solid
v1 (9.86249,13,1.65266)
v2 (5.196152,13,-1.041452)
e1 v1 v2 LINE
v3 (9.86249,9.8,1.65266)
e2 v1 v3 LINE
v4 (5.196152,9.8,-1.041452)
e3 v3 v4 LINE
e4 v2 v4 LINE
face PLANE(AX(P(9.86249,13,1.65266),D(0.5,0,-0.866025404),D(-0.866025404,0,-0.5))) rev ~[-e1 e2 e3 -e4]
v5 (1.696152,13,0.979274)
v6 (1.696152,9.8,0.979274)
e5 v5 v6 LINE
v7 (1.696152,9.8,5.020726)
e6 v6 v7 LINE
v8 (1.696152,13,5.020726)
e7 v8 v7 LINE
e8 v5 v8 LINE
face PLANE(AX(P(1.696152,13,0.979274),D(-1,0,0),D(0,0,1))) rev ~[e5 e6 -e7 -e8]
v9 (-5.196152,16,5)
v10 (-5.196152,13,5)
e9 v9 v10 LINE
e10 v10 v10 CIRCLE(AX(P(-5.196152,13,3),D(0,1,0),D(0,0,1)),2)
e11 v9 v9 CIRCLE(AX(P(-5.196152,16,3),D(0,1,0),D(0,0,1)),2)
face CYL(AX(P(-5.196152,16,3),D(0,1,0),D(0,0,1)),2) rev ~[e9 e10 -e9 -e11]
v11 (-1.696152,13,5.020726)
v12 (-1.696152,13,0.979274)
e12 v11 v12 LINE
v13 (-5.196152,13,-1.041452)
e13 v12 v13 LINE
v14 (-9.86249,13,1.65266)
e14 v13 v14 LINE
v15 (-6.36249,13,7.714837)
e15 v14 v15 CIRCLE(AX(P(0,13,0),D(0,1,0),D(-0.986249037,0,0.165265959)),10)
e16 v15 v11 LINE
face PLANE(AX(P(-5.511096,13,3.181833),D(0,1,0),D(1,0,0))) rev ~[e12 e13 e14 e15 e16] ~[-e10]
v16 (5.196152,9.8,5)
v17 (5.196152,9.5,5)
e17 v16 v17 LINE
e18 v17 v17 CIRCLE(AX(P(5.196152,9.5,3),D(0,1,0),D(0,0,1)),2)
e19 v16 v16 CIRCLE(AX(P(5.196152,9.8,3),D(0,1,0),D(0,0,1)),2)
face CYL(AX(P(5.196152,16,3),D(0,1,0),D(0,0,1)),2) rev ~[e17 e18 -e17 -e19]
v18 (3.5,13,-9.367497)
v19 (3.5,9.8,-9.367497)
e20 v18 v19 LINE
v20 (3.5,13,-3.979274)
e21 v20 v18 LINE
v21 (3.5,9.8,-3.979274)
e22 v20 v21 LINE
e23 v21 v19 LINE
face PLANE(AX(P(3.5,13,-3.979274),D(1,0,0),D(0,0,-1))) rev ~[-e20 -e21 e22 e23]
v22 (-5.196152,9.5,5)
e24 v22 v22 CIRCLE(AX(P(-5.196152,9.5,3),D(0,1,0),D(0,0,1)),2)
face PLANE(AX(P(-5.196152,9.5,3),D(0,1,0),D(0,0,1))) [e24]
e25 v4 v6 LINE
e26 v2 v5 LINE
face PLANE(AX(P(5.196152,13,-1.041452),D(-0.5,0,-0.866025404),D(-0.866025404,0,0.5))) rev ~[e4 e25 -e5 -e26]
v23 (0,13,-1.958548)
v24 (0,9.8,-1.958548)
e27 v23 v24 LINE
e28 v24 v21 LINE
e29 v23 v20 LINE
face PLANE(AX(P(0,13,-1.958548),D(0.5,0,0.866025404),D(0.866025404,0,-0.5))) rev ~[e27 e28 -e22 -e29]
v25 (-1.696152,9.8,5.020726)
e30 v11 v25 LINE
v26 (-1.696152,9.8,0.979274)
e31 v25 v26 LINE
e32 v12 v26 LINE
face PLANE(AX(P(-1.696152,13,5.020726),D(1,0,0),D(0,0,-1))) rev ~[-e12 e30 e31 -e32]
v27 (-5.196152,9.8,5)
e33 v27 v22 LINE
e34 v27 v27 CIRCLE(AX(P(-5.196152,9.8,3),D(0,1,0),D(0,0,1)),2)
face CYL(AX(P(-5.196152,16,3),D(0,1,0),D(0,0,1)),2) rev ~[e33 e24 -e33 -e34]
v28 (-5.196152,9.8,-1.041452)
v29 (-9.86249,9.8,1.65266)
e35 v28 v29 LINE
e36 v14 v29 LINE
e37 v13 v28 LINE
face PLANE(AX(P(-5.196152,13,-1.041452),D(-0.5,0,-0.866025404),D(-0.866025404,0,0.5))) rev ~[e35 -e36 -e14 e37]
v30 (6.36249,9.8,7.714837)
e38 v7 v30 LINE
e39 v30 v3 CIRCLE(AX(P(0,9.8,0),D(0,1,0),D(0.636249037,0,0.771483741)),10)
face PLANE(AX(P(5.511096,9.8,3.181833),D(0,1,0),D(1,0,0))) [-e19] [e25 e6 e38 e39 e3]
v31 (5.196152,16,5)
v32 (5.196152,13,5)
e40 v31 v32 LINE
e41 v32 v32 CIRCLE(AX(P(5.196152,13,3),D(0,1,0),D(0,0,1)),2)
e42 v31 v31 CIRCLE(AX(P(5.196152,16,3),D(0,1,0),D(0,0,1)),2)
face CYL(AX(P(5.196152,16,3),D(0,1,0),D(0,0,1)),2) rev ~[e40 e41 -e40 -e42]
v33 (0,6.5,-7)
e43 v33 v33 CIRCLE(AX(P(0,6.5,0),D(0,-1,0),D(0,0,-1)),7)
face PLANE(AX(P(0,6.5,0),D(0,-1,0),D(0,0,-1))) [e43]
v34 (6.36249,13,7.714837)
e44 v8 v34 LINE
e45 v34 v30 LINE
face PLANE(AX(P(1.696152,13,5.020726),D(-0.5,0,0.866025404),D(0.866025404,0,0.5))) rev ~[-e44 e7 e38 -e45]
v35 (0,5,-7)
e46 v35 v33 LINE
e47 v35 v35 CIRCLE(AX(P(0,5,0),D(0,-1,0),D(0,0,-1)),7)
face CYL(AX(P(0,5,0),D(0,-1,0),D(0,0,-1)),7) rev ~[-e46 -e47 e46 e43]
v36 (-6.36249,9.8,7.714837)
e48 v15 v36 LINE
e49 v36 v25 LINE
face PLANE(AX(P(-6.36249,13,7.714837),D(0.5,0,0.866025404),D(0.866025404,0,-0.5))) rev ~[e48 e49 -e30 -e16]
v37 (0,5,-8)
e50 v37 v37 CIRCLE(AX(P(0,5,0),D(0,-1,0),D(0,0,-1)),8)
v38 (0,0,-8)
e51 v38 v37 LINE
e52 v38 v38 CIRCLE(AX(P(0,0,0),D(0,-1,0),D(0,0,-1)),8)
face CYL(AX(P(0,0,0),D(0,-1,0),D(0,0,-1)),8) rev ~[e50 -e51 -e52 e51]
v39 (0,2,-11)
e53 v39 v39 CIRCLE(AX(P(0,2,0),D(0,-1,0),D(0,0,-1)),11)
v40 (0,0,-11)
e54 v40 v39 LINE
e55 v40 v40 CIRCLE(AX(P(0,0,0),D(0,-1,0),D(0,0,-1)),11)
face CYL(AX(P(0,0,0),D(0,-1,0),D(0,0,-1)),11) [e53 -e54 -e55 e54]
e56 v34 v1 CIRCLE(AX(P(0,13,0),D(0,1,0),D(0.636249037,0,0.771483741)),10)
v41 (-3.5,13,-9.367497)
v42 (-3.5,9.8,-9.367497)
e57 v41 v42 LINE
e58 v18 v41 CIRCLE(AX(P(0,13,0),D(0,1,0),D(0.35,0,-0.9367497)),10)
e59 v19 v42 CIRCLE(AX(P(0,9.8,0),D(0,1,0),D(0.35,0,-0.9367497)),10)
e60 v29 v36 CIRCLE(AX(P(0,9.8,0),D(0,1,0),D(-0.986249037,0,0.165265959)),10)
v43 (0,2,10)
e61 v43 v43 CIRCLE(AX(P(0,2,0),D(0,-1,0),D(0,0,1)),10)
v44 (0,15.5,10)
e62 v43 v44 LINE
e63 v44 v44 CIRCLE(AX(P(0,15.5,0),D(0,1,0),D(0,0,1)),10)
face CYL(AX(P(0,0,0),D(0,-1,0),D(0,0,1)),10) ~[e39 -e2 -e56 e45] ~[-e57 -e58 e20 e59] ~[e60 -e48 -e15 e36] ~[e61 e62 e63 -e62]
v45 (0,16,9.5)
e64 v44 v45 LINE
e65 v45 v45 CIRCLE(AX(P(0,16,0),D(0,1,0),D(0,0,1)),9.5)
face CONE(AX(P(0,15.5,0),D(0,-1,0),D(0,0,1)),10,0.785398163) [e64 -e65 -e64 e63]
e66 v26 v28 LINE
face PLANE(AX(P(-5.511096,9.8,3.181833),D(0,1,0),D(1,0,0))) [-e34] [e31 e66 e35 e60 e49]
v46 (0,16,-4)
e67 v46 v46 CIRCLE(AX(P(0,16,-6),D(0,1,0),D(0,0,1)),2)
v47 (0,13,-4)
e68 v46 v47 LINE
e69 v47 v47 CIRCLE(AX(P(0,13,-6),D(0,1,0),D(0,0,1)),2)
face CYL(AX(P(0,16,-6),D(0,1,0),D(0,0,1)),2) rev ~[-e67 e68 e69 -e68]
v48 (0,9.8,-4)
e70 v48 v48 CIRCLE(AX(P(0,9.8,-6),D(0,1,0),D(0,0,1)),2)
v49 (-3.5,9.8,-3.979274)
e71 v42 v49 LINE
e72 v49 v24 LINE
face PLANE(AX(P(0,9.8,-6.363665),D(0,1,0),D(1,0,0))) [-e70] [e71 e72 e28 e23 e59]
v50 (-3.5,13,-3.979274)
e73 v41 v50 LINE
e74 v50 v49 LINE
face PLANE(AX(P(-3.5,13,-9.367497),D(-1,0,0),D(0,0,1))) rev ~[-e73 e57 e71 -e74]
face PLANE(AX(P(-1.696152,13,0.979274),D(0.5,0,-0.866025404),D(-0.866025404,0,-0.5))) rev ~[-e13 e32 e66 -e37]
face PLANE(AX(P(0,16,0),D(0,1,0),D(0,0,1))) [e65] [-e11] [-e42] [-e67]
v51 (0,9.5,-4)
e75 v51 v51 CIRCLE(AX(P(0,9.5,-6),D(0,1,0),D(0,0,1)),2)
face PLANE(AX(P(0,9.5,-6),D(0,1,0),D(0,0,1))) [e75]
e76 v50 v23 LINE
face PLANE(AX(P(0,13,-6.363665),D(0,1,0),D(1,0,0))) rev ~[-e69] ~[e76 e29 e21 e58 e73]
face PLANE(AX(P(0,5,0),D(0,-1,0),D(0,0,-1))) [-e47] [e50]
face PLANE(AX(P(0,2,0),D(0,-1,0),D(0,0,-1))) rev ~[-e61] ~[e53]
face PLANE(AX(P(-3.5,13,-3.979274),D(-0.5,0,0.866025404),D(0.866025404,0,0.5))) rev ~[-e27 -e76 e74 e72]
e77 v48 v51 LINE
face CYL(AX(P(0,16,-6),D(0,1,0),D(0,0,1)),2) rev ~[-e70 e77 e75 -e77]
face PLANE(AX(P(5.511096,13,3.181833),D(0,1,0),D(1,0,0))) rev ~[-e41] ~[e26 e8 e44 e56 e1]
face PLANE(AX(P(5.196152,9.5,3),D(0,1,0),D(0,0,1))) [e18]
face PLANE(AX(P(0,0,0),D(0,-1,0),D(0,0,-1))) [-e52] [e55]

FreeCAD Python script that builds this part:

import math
import FreeCAD as App
import Part
import Sketcher
from FreeCAD import Vector
Q = App.Units.Quantity


def edges_at(feature, points):
    """Names of the edges that pass closest to the given points."""
    edges = feature.Shape.Edges
    near = lambda p: min(range(len(edges)), key=lambda i: edges[i].distToShape(Part.Vertex(*p))[0])
    return sorted({f"Edge{near(p) + 1}" for p in points})

doc = App.newDocument("Part")
body = doc.addObject("PartDesign::Body", "Body")

sketch1 = body.newObject("Sketcher::SketchObject", "Sketch")
sketch1.AttachmentSupport = (doc.getObject("XZ_Plane"), [""])
sketch1.MapMode = "FlatFace"
sketch1.addGeometry(Part.Circle(Vector(0, 0, 0), Vector(0, 0, 1), 10), False)
sketch1.addConstraint([
    Sketcher.Constraint("Coincident", 0, 3, -1, 1),
    Sketcher.Constraint("Diameter", 0, Q("20 mm")),
])
pad1 = body.newObject("PartDesign::Pad", "Pad")
pad1.Profile = sketch1
pad1.Length = 16
pad1.Reversed = True

sketch2 = body.newObject("Sketcher::SketchObject", "Sketch001")
sketch2.AttachmentSupport = (doc.getObject("XZ_Plane"), [""])
sketch2.MapMode = "FlatFace"
sketch2.addGeometry([
    Part.Circle(Vector(0, 0, 0), Vector(0, 0, 1), 11),
    Part.Circle(Vector(0, 0, 0), Vector(0, 0, 1), 10),
], False)
sketch2.addConstraint([
    Sketcher.Constraint("Coincident", 0, 3, -1, 1),
    Sketcher.Constraint("Coincident", 1, 3, -1, 1),
    Sketcher.Constraint("Diameter", 0, Q("22 mm")),
    Sketcher.Constraint("Diameter", 1, Q("20 mm")),
])
pad2 = body.newObject("PartDesign::Pad", "Pad001")
pad2.Profile = sketch2
pad2.Length = 2
pad2.Reversed = True

sketch3 = body.newObject("Sketcher::SketchObject", "Sketch002")
sketch3.AttachmentSupport = (doc.getObject("XZ_Plane"), [""])
sketch3.MapMode = "FlatFace"
sketch3.addGeometry(Part.Circle(Vector(0, 0, 0), Vector(0, 0, 1), 8), False)
sketch3.addConstraint([
    Sketcher.Constraint("Coincident", 0, 3, -1, 1),
    Sketcher.Constraint("Diameter", 0, Q("16 mm")),
])
pocket1 = body.newObject("PartDesign::Pocket", "Pocket")
pocket1.Profile = sketch3
pocket1.Length = 6.5

sketch4 = body.newObject("Sketcher::SketchObject", "Sketch003")
sketch4.AttachmentSupport = (doc.getObject("XZ_Plane"), [""])
sketch4.MapMode = "FlatFace"
sketch4.AttachmentOffset = App.Placement(Vector(0, 0, -16), App.Rotation())
sketch4.addGeometry([
    Part.Circle(Vector(0, -6, 0), Vector(0, 0, 1), 2),
    Part.Circle(Vector(5.196152, 3, 0), Vector(0, 0, 1), 2),
    Part.Circle(Vector(-5.196152, 3, 0), Vector(0, 0, 1), 2),
], False)
sketch4.addConstraint([
    Sketcher.Constraint("Equal", 0, 1),
    Sketcher.Constraint("Equal", 1, 2),
    Sketcher.Constraint("Symmetric", 1, 3, 2, 3, -2),
    Sketcher.Constraint("PointOnObject", 0, 3, -2),
    Sketcher.Constraint("Diameter", 0, Q("4 mm")),
    Sketcher.Constraint("DistanceY", 0, 3, -1, 1, Q("6 mm")),
    Sketcher.Constraint("DistanceY", -1, 1, 1, 3, Q("3 mm")),
    Sketcher.Constraint("DistanceX", -1, 1, 1, 3, Q("5.196152 mm")),
])
pocket2 = body.newObject("PartDesign::Pocket", "Pocket001")
pocket2.Profile = sketch4
pocket2.Length = 6.5
pocket2.Reversed = True

sketch5 = body.newObject("Sketcher::SketchObject", "Sketch004")
sketch5.AttachmentSupport = (doc.getObject("XZ_Plane"), [""])
sketch5.MapMode = "FlatFace"
sketch5.AttachmentOffset = App.Placement(Vector(0, 0, -13), App.Rotation())
sketch5.addGeometry([
    Part.LineSegment(Vector(-3.5, -9.367497, 0), Vector(-3.5, -3.979274, 0)),
    Part.LineSegment(Vector(-3.5, -3.979274, 0), Vector(0, -1.958548, 0)),
    Part.LineSegment(Vector(0, -1.958548, 0), Vector(3.5, -3.979274, 0)),
    Part.LineSegment(Vector(3.5, -3.979274, 0), Vector(3.5, -9.367497, 0)),
    Part.ArcOfCircle(Part.Circle(Vector(0, 0, 0), Vector(0, 0, 1), 10), math.radians(-110.487315), math.radians(-69.512685)),
    Part.Circle(Vector(0, -6, 0), Vector(0, 0, 1), 2),
    Part.ArcOfCircle(Part.Circle(Vector(0, 0, 0), Vector(0, 0, 1), 10), math.radians(129.512685), math.radians(170.487315)),
    Part.LineSegment(Vector(-6.36249, 7.714837, 0), Vector(-1.696152, 5.020726, 0)),
    Part.LineSegment(Vector(-1.696152, 5.020726, 0), Vector(-1.696152, 0.979274, 0)),
    Part.LineSegment(Vector(-1.696152, 0.979274, 0), Vector(-5.196152, -1.041452, 0)),
    Part.LineSegment(Vector(-5.196152, -1.041452, 0), Vector(-9.86249, 1.65266, 0)),
    Part.Circle(Vector(-5.196152, 3, 0), Vector(0, 0, 1), 2),
    Part.LineSegment(Vector(9.86249, 1.65266, 0), Vector(5.196152, -1.041452, 0)),
    Part.LineSegment(Vector(5.196152, -1.041452, 0), Vector(1.696152, 0.979274, 0)),
    Part.LineSegment(Vector(1.696152, 0.979274, 0), Vector(1.696152, 5.020726, 0)),
    Part.LineSegment(Vector(1.696152, 5.020726, 0), Vector(6.36249, 7.714837, 0)),
    Part.ArcOfCircle(Part.Circle(Vector(0, 0, 0), Vector(0, 0, 1), 10), math.radians(9.512685), math.radians(50.487315)),
    Part.Circle(Vector(5.196152, 3, 0), Vector(0, 0, 1), 2),
], False)
sketch5.addConstraint([
    Sketcher.Constraint("Coincident", 0, 2, 1, 1),
    Sketcher.Constraint("Coincident", 1, 2, 2, 1),
    Sketcher.Constraint("Coincident", 2, 2, 3, 1),
    Sketcher.Constraint("Coincident", 3, 2, 4, 2),
    Sketcher.Constraint("Coincident", 4, 1, 0, 1),
    Sketcher.Constraint("Coincident", 6, 1, 7, 1),
    Sketcher.Constraint("Coincident", 7, 2, 8, 1),
    Sketcher.Constraint("Coincident", 8, 2, 9, 1),
    Sketcher.Constraint("Coincident", 9, 2, 10, 1),
    Sketcher.Constraint("Coincident", 10, 2, 6, 2),
    Sketcher.Constraint("Coincident", 12, 2, 13, 1),
    Sketcher.Constraint("Coincident", 13, 2, 14, 1),
    Sketcher.Constraint("Coincident", 14, 2, 15, 1),
    Sketcher.Constraint("Coincident", 15, 2, 16, 2),
    Sketcher.Constraint("Coincident", 16, 1, 12, 1),
    Sketcher.Constraint("Vertical", 0),
    Sketcher.Constraint("Vertical", 3),
    Sketcher.Constraint("Vertical", 8),
    Sketcher.Constraint("Vertical", 14),
    Sketcher.Constraint("Coincident", 4, 3, -1, 1),
    Sketcher.Constraint("Coincident", 6, 3, -1, 1),
    Sketcher.Constraint("Coincident", 16, 3, -1, 1),
    Sketcher.Constraint("Equal", 4, 6),
    Sketcher.Constraint("Equal", 5, 11),
    Sketcher.Constraint("Equal", 6, 16),
    Sketcher.Constraint("Equal", 11, 17),
    Sketcher.Constraint("Symmetric", 11, 3, 17, 3, -2),
    Sketcher.Constraint("Symmetric", 0, 2, 2, 2, -2),
    Sketcher.Constraint("Symmetric", 9, 2, 12, 2, -2),
    Sketcher.Constraint("Symmetric", 8, 2, 13, 2, -2),
    Sketcher.Constraint("PointOnObject", 5, 3, -2),
    Sketcher.Constraint("PointOnObject", 1, 2, -2),
    Sketcher.Constraint("Parallel", 2, 7),
    Sketcher.Constraint("Parallel", 1, 9),
    Sketcher.Constraint("Parallel", 7, 10),
    Sketcher.Constraint("Parallel", 9, 12),
    Sketcher.Constraint("Parallel", 12, 15),
    Sketcher.Constraint("Horizontal", 7, 2, 14, 2),
    Sketcher.Constraint("Vertical", 11, 3, 9, 2),
    Sketcher.Constraint("Equal", 2, 9),
    Sketcher.Constraint("Equal", 7, 10),
    Sketcher.Constraint("Diameter", 5, Q("4 mm")),
    Sketcher.Constraint("Radius", 4, Q("10 mm")),
    Sketcher.Constraint("Angle", 1, Q("30 deg")),
    Sketcher.Constraint("DistanceY", 5, 3, -1, 1, Q("6 mm")),
    Sketcher.Constraint("DistanceY", -1, 1, 11, 3, Q("3 mm")),
    Sketcher.Constraint("DistanceX", 0, 2, 3, 2, Q("7 mm")),
    Sketcher.Constraint("DistanceY", 8, 2, 8, 1, Q("4.041452 mm")),
    Sketcher.Constraint("DistanceY", 0, 1, 0, 2, Q("5.388223 mm")),
    Sketcher.Constraint("DistanceY", 9, 2, -1, 1, Q("1.041452 mm")),
])
pocket3 = body.newObject("PartDesign::Pocket", "Pocket002")
pocket3.Profile = sketch5
pocket3.Length = 3.2
pocket3.Reversed = True

sketch6 = body.newObject("Sketcher::SketchObject", "Sketch005")
sketch6.AttachmentSupport = (doc.getObject("XZ_Plane"), [""])
sketch6.MapMode = "FlatFace"
sketch6.AttachmentOffset = App.Placement(Vector(0, 0, -5), App.Rotation())
sketch6.addGeometry([
    Part.Circle(Vector(0, 0, 0), Vector(0, 0, 1), 8),
    Part.Circle(Vector(0, 0, 0), Vector(0, 0, 1), 7),
], False)
sketch6.addConstraint([
    Sketcher.Constraint("Coincident", 0, 3, -1, 1),
    Sketcher.Constraint("Coincident", 1, 3, -1, 1),
    Sketcher.Constraint("Diameter", 0, Q("16 mm")),
    Sketcher.Constraint("Diameter", 1, Q("14 mm")),
])
pad3 = body.newObject("PartDesign::Pad", "Pad002")
pad3.Profile = sketch6
pad3.Length = 1.5
pad3.Reversed = True
doc.recompute()

chamfer = body.newObject("PartDesign::Chamfer", "Chamfer")
chamfer.Base = (pad3, edges_at(pad3, [(0, 16, -10)]))
chamfer.Size = 0.5

doc.recompute()
